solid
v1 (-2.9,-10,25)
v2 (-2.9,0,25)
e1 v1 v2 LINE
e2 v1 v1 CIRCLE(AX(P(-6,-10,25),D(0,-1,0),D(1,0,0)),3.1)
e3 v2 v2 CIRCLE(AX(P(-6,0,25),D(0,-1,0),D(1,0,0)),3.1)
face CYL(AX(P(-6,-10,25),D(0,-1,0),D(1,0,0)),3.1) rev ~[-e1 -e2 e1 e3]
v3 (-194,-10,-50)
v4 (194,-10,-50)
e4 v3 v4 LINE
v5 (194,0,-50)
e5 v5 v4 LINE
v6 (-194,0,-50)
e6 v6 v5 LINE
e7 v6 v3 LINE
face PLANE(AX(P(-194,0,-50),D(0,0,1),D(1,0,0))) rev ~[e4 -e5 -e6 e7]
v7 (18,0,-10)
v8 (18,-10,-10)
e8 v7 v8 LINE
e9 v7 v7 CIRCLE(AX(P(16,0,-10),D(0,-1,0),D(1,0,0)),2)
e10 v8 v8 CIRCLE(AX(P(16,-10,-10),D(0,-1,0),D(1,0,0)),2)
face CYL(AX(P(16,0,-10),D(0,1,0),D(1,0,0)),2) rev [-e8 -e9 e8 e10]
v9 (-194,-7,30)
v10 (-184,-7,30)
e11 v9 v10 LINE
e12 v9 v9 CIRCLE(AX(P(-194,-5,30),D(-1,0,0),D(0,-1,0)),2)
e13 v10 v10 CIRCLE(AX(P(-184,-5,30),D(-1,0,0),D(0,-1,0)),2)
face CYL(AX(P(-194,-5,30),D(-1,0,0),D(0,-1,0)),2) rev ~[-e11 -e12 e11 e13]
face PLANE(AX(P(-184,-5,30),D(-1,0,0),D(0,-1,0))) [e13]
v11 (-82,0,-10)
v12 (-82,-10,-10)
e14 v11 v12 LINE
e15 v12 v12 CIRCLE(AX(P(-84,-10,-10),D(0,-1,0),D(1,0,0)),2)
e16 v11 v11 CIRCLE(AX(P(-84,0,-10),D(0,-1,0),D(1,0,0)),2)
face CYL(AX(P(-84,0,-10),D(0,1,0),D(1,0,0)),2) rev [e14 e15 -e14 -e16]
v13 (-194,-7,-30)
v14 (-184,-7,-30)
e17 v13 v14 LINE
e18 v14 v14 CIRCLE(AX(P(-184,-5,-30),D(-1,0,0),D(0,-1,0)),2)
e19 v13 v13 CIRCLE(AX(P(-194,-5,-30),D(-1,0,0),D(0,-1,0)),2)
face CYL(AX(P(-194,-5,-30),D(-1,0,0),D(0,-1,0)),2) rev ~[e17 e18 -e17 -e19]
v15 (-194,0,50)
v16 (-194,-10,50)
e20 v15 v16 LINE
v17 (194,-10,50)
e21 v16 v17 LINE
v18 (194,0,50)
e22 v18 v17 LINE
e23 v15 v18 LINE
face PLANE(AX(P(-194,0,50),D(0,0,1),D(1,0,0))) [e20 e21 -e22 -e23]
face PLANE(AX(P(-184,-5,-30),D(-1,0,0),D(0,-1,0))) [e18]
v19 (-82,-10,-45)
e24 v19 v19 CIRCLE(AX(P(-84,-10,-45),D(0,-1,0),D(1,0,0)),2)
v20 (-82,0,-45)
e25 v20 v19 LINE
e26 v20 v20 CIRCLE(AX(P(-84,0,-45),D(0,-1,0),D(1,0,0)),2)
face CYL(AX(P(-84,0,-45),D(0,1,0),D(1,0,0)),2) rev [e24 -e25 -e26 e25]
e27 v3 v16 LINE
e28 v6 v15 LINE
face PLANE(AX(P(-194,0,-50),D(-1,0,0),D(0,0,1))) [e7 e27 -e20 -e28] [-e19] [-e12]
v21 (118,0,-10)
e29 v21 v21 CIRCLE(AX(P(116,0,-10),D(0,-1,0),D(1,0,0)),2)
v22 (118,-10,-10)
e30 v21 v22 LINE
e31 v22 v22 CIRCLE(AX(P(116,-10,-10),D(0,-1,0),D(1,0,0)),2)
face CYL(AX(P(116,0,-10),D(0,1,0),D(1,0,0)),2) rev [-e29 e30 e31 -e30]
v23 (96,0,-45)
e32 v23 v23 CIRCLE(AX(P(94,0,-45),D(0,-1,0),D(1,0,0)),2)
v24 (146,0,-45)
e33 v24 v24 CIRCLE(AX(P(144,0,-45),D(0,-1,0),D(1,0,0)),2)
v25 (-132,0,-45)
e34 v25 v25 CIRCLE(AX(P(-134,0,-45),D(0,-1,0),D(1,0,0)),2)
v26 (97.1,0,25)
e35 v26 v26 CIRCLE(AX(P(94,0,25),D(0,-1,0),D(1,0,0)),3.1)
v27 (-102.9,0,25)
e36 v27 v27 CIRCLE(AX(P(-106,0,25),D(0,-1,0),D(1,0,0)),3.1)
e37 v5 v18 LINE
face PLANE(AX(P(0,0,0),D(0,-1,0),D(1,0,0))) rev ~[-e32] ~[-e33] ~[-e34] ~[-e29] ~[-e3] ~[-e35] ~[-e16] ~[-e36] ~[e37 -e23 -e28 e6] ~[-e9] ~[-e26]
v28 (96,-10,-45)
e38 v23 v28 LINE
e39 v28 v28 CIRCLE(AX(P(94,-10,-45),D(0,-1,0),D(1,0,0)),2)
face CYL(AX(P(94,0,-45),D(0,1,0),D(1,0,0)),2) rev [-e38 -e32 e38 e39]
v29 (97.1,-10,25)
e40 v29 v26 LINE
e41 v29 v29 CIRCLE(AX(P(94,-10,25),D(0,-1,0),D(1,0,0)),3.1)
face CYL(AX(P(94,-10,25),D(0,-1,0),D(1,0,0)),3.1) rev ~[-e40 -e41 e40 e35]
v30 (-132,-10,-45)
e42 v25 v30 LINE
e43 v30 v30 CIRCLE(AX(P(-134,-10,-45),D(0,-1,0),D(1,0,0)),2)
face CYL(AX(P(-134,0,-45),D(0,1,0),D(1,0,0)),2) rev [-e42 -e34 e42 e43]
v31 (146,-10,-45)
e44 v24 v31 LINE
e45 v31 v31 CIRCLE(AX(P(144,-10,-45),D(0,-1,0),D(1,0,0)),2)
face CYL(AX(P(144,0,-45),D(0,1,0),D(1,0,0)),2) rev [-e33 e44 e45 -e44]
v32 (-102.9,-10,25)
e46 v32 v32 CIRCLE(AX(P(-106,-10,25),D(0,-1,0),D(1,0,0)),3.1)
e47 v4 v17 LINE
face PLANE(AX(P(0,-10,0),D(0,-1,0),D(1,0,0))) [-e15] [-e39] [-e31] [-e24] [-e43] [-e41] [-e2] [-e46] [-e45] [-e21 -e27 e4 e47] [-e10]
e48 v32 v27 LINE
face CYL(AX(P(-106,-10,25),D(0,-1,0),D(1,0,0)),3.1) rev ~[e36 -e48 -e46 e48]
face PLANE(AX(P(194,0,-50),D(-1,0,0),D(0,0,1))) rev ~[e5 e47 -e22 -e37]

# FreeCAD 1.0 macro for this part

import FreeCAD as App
import Part
import Sketcher

V = App.Vector

doc = App.newDocument("Part")
body = doc.addObject("PartDesign::Body", "Body")

# Sketch on XZ plane
sketch1 = doc.addObject("Sketcher::SketchObject", "Sketch")
body.addObject(sketch1)
sketch1.AttachmentSupport = (doc.XZ_Plane, [""])
sketch1.MapMode = "FlatFace"
sketch1.addGeometry([
    Part.LineSegment(V(-194, 50, 0), V(-194, -50, 0)),  # 0
    Part.LineSegment(V(-194, -50, 0), V(194, -50, 0)),  # 1
    Part.LineSegment(V(194, -50, 0), V(194, 50, 0)),  # 2
    Part.LineSegment(V(194, 50, 0), V(-194, 50, 0)),  # 3
    Part.Circle(V(-134, -45, 0), V(0, 0, 1), 2),  # 4
    Part.Circle(V(-84, -45, 0), V(0, 0, 1), 2),  # 5
    Part.Circle(V(94, -45, 0), V(0, 0, 1), 2),  # 6
    Part.Circle(V(144, -45, 0), V(0, 0, 1), 2),  # 7
    Part.Circle(V(-84, -10, 0), V(0, 0, 1), 2),  # 8
    Part.Circle(V(16, -10, 0), V(0, 0, 1), 2),  # 9
    Part.Circle(V(116, -10, 0), V(0, 0, 1), 2),  # 10
], False)
sketch1.addConstraint([
    Sketcher.Constraint("Coincident", 0, 2, 1, 1),
    Sketcher.Constraint("Coincident", 1, 2, 2, 1),
    Sketcher.Constraint("Coincident", 2, 2, 3, 1),
    Sketcher.Constraint("Coincident", 3, 2, 0, 1),
    Sketcher.Constraint("Vertical", 0),
    Sketcher.Constraint("Horizontal", 1),
    Sketcher.Constraint("Vertical", 2),
    Sketcher.Constraint("Horizontal", 3),
    Sketcher.Constraint("Equal", 4, 5),
    Sketcher.Constraint("Equal", 5, 6),
    Sketcher.Constraint("Equal", 6, 7),
    Sketcher.Constraint("Equal", 7, 8),
    Sketcher.Constraint("Equal", 8, 9),
    Sketcher.Constraint("Equal", 9, 10),
    Sketcher.Constraint("Symmetric", 0, 2, 2, 2, -1, 1),
    Sketcher.Constraint("Horizontal", 4, 3, 5, 3),
    Sketcher.Constraint("Horizontal", 5, 3, 6, 3),
    Sketcher.Constraint("Horizontal", 6, 3, 7, 3),
    Sketcher.Constraint("Horizontal", 8, 3, 9, 3),
    Sketcher.Constraint("Horizontal", 9, 3, 10, 3),
    Sketcher.Constraint("Vertical", 5, 3, 8, 3),
    Sketcher.Constraint("Diameter", 4, 4.0),
    Sketcher.Constraint("DistanceX", 1, 1, 1, 2, 388.0),
    Sketcher.Constraint("DistanceY", 0, 2, 0, 1, 100.0),
    Sketcher.Constraint("DistanceX", 4, 3, -1, 1, 134.0),
    Sketcher.Constraint("DistanceY", 4, 3, -1, 1, 45.0),
    Sketcher.Constraint("DistanceX", 5, 3, -1, 1, 84.0),
    Sketcher.Constraint("DistanceX", -1, 1, 6, 3, 94.0),
    Sketcher.Constraint("DistanceX", -1, 1, 7, 3, 144.0),
    Sketcher.Constraint("DistanceY", 8, 3, -1, 1, 10.0),
    Sketcher.Constraint("DistanceX", -1, 1, 9, 3, 16.0),
    Sketcher.Constraint("DistanceX", -1, 1, 10, 3, 116.0),
])
pad1 = doc.addObject("PartDesign::Pad", "Pad")
body.addObject(pad1)
pad1.Profile = sketch1
pad1.Length = 10

# Sketch on XZ plane
sketch2 = doc.addObject("Sketcher::SketchObject", "Sketch001")
body.addObject(sketch2)
sketch2.AttachmentSupport = (doc.XZ_Plane, [""])
sketch2.MapMode = "FlatFace"
sketch2.AttachmentOffset = App.Placement(V(0, 0, 10), App.Rotation())
sketch2.addGeometry([
    Part.Circle(V(-6, 25, 0), V(0, 0, 1), 3.1),
    Part.Circle(V(94, 25, 0), V(0, 0, 1), 3.1),
    Part.Circle(V(-106, 25, 0), V(0, 0, 1), 3.1),
], False)
sketch2.addConstraint([
    Sketcher.Constraint("Equal", 0, 1),
    Sketcher.Constraint("Equal", 1, 2),
    Sketcher.Constraint("Horizontal", 0, 3, 1, 3),
    Sketcher.Constraint("Horizontal", 1, 3, 2, 3),
    Sketcher.Constraint("Diameter", 0, 6.2),
    Sketcher.Constraint("DistanceX", 0, 3, -1, 1, 6.0),
    Sketcher.Constraint("DistanceY", -1, 1, 0, 3, 25.0),
    Sketcher.Constraint("DistanceX", -1, 1, 1, 3, 94.0),
    Sketcher.Constraint("DistanceX", 2, 3, -1, 1, 106.0),
])
pocket1 = doc.addObject("PartDesign::Pocket", "Pocket")
body.addObject(pocket1)
pocket1.Profile = sketch2
pocket1.Length = 10

# Sketch on YZ plane
sketch3 = doc.addObject("Sketcher::SketchObject", "Sketch002")
body.addObject(sketch3)
sketch3.AttachmentSupport = (doc.YZ_Plane, [""])
sketch3.MapMode = "FlatFace"
sketch3.AttachmentOffset = App.Placement(V(0, 0, -194), App.Rotation())
sketch3.addGeometry([
    Part.Circle(V(-5, -30, 0), V(0, 0, 1), 2),
    Part.Circle(V(-5, 30, 0), V(0, 0, 1), 2),
], False)
sketch3.addConstraint([
    Sketcher.Constraint("Equal", 0, 1),
    Sketcher.Constraint("Symmetric", 0, 3, 1, 3, -1),
    Sketcher.Constraint("Diameter", 0, 4.0),
    Sketcher.Constraint("DistanceX", 0, 3, -1, 1, 5.0),
    Sketcher.Constraint("DistanceY", 0, 3, -1, 1, 30.0),
])
pocket2 = doc.addObject("PartDesign::Pocket", "Pocket001")
body.addObject(pocket2)
pocket2.Profile = sketch3
pocket2.Length = 10
pocket2.Reversed = True

doc.recompute()
